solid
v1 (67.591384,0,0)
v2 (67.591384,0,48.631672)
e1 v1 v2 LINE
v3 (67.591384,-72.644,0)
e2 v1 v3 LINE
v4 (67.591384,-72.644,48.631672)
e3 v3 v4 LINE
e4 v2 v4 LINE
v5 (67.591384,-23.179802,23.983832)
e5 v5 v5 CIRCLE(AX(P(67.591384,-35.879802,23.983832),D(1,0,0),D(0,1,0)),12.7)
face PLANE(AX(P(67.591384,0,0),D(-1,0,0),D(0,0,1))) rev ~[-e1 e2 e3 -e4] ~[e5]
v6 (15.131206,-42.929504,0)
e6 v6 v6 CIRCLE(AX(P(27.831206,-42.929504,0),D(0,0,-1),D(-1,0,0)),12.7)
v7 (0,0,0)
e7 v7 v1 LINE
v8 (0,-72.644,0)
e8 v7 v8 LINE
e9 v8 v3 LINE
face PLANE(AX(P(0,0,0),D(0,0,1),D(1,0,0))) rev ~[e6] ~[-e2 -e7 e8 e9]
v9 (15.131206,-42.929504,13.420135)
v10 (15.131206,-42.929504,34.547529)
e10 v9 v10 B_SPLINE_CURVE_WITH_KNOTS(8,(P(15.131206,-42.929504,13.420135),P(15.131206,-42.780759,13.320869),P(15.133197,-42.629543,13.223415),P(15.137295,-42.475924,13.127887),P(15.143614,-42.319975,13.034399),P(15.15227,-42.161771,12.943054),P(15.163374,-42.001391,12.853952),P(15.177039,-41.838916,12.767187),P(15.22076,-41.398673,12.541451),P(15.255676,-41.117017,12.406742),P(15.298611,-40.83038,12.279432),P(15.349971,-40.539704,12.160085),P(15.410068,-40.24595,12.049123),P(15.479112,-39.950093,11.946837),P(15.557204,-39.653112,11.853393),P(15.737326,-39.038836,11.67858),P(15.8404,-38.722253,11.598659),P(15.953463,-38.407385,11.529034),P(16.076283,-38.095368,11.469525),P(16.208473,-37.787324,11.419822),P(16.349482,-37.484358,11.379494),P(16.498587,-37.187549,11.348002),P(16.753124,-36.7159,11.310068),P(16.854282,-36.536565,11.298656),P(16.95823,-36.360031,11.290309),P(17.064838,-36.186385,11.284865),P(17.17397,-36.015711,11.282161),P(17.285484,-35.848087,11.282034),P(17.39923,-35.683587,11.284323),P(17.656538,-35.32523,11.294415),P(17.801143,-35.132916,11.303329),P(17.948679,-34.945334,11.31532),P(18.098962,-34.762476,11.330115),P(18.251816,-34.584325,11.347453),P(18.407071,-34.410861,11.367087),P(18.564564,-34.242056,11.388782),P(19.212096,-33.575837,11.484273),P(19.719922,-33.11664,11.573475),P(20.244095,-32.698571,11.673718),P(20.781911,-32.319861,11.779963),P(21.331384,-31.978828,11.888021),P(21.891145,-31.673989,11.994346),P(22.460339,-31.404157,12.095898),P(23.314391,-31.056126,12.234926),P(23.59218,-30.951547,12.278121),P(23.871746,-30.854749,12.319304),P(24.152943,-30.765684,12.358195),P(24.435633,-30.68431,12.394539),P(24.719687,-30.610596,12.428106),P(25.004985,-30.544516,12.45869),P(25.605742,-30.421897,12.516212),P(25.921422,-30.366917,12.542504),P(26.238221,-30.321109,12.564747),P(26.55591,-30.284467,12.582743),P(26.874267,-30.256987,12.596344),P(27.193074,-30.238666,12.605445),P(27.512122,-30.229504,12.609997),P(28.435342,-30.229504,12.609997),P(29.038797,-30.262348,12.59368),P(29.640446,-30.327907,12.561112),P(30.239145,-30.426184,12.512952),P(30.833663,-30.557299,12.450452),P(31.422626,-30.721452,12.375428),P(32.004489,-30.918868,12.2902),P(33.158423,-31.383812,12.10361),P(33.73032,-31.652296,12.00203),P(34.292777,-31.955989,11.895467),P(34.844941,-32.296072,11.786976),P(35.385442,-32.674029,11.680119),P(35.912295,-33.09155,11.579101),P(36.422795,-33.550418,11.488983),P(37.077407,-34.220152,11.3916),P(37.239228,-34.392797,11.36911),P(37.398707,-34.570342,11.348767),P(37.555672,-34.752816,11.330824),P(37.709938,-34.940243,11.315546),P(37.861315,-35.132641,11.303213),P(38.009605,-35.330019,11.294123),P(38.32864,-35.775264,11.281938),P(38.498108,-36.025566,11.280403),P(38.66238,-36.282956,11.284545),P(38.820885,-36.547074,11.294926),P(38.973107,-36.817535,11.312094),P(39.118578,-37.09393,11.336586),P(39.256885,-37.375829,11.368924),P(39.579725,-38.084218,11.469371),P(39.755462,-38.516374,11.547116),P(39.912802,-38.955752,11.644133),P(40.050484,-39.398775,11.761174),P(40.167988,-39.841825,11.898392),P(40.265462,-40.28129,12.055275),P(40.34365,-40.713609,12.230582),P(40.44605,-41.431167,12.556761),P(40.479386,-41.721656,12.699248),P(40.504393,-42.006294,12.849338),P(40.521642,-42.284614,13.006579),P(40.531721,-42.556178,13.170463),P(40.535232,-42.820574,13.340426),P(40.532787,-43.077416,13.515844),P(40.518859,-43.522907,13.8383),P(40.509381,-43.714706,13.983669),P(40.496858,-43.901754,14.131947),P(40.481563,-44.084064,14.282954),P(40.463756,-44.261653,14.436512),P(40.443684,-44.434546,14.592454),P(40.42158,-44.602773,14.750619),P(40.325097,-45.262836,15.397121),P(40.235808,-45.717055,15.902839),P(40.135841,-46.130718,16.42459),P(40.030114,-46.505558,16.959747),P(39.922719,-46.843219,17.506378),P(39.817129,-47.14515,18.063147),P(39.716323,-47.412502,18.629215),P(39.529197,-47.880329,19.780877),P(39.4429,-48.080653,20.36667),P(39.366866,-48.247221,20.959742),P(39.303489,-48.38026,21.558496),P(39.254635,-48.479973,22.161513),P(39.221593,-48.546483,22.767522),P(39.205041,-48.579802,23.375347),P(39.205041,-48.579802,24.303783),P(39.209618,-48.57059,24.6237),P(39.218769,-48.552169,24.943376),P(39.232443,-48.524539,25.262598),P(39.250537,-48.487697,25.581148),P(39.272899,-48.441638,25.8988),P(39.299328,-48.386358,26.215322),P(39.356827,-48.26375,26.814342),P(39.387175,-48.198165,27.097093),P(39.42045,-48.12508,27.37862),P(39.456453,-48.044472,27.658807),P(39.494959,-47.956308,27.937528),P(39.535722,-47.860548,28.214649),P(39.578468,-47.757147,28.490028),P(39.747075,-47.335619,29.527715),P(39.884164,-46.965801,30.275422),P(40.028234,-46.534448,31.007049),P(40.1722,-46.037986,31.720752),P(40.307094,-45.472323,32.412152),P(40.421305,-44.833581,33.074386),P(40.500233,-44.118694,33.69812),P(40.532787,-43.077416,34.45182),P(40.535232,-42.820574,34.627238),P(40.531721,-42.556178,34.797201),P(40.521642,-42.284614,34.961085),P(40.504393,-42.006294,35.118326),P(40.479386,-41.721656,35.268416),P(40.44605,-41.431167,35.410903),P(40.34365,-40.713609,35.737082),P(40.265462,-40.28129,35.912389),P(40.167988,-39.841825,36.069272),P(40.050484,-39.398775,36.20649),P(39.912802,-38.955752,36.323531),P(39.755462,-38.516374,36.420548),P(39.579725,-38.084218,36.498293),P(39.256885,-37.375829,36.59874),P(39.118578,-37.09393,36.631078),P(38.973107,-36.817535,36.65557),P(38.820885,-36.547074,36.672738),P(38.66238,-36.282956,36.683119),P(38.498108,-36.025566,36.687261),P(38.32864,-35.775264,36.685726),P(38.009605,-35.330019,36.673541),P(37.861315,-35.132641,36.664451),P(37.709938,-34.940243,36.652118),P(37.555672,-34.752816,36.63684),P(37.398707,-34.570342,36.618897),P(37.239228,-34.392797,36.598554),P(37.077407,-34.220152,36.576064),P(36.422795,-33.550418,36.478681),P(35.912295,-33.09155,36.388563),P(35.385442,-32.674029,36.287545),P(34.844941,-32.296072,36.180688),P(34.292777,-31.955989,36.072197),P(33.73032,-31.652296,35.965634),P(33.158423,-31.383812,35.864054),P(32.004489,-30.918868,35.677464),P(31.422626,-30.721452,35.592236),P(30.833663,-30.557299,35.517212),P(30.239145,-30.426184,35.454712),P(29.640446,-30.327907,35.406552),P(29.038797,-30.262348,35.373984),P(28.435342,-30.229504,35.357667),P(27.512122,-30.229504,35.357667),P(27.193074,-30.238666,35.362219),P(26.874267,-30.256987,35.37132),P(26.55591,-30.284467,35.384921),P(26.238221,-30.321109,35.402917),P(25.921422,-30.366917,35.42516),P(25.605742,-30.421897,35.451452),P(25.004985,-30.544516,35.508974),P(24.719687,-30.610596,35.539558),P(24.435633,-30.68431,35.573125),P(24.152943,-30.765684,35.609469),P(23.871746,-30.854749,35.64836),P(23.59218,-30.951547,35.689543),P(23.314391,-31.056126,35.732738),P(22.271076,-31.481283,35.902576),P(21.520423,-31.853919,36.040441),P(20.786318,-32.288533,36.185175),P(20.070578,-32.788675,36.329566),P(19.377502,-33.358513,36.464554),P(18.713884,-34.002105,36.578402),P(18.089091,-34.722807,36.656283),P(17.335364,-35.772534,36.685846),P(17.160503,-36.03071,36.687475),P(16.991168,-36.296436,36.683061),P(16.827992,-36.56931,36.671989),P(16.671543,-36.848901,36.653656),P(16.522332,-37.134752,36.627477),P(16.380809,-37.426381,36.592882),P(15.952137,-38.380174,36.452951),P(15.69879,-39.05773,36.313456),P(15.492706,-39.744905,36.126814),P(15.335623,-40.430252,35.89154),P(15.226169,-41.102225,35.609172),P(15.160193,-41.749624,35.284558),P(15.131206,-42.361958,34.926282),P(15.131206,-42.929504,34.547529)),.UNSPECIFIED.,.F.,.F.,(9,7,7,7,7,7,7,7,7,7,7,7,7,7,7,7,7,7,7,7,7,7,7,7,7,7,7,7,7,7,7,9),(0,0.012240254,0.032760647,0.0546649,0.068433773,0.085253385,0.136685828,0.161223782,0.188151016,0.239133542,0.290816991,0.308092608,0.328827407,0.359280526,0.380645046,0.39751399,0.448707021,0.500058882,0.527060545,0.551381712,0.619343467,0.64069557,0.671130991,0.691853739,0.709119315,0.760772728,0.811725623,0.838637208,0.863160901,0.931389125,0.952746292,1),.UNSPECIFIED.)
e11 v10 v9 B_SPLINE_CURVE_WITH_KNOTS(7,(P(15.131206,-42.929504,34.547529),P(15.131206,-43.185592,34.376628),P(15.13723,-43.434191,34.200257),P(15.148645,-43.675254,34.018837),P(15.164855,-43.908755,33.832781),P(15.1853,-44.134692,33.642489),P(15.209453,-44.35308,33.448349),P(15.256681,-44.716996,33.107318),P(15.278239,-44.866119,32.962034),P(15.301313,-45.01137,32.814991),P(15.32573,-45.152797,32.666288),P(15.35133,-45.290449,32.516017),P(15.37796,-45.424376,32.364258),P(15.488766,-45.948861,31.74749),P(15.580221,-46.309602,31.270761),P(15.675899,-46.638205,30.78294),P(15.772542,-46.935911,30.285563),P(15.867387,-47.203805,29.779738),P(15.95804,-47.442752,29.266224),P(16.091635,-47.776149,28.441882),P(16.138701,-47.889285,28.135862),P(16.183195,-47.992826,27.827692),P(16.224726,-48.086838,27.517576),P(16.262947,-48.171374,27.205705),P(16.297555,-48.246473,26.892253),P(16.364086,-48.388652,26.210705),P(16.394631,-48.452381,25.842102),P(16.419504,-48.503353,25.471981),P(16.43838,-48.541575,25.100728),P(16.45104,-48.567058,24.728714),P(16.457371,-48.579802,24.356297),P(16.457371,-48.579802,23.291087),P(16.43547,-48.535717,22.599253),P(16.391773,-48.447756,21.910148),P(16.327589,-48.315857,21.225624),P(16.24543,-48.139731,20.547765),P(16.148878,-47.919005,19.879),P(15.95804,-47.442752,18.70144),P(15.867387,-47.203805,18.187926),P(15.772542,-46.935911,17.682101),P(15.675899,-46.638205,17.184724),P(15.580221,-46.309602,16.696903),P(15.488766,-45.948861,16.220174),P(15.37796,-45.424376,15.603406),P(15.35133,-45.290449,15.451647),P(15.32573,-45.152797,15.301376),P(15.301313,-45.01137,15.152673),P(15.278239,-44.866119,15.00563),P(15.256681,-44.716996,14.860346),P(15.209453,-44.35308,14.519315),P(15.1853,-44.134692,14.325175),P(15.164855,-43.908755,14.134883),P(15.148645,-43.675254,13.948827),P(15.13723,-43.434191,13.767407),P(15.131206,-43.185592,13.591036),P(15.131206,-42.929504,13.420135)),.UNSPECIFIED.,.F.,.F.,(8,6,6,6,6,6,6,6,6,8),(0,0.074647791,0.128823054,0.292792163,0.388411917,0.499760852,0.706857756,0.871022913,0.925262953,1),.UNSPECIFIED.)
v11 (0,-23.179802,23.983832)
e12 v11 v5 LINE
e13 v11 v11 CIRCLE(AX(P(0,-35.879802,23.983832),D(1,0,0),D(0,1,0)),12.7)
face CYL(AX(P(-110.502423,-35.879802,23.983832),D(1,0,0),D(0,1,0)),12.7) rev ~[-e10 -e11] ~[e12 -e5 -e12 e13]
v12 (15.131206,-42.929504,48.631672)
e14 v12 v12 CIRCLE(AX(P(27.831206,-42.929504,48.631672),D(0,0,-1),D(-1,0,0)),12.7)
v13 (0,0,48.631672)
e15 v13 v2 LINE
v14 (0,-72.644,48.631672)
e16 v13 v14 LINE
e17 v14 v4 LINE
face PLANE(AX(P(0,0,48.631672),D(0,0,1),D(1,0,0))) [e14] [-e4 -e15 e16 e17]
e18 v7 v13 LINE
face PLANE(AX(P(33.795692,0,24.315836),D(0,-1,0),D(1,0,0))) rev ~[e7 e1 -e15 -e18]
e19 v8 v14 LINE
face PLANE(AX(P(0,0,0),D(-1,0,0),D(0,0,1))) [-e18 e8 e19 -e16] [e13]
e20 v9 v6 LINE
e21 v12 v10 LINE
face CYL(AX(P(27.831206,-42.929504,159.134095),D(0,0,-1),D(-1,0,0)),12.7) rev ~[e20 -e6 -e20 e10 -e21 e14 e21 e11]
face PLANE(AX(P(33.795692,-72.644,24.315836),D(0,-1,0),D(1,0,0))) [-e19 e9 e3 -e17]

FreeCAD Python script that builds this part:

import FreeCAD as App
import Part
import Sketcher

V = App.Vector
Q = App.Units.Quantity


def add_polygon(sketch, points):
    """Adds a closed chain of lines whose ends are joined by coincident constraints."""
    first, n = sketch.GeometryCount, len(points)
    for a, b in zip(points, points[1:] + points[:1]):
        sketch.addGeometry(Part.LineSegment(App.Vector(*a, 0), App.Vector(*b, 0)), False)
    for i in range(n):
        sketch.addConstraint(Sketcher.Constraint("Coincident", first + i, 2, first + (i + 1) % n, 1))

doc = App.newDocument("Part")
body = doc.addObject("PartDesign::Body", "Body")

# Sketch on XZ plane
sketch1 = body.newObject("Sketcher::SketchObject", "Sketch")
sketch1.AttachmentSupport = (doc.getObject("XZ_Plane"), [""])
sketch1.MapMode = "FlatFace"
add_polygon(sketch1, [(0, 49), (0, 0), (68, 0), (68, 49)])  # lines 0-3
sketch1.addConstraint([
    Sketcher.Constraint("Vertical", 0),
    Sketcher.Constraint("Horizontal", 1),
    Sketcher.Constraint("Vertical", 2),
    Sketcher.Constraint("Horizontal", 3),
    Sketcher.Constraint("Coincident", 0, 2, -1, 1),
    Sketcher.Constraint("DistanceX", 1, 1, 1, 2, 67.591384),
    Sketcher.Constraint("DistanceY", 0, 2, 0, 1, 48.631672),
])
pad1 = body.newObject("PartDesign::Pad", "Pad")
pad1.Profile = sketch1
pad1.Length = Q("2.86 in")

# Sketch on XY plane
sketch2 = body.newObject("Sketcher::SketchObject", "Sketch001")
sketch2.AttachmentSupport = (doc.getObject("XY_Plane"), [""])
sketch2.MapMode = "FlatFace"
sketch2.AttachmentOffset = App.Placement(V(0, 0, 48.631672), App.Rotation())
sketch2.addGeometry(Part.Circle(V(28, -43, 0), V(0, 0, 1), 13), False)
sketch2.addConstraint([
    Sketcher.Constraint("Diameter", 0, Q("1 in")),
    Sketcher.Constraint("DistanceX", -1, 1, 0, 3, 27.831206),
    Sketcher.Constraint("DistanceY", 0, 3, -1, 1, 42.929504),
])
doc.recompute()
hole = body.newObject("PartDesign::Hole", "Hole")
hole.Profile = sketch2
hole.ThreadType = "None"
hole.Diameter = Q("1 in")
hole.DepthType = "ThroughAll"

# Sketch on YZ plane
sketch3 = body.newObject("Sketcher::SketchObject", "Sketch002")
sketch3.AttachmentSupport = (doc.getObject("YZ_Plane"), [""])
sketch3.MapMode = "FlatFace"
sketch3.addGeometry(Part.Circle(V(-36, 24, 0), V(0, 0, 1), 13), False)
sketch3.addConstraint([
    Sketcher.Constraint("Diameter", 0, Q("1 in")),
    Sketcher.Constraint("DistanceX", 0, 3, -1, 1, 35.879802),
    Sketcher.Constraint("DistanceY", -1, 1, 0, 3, 23.983832),
])
doc.recompute()
hole2 = body.newObject("PartDesign::Hole", "Hole001")
hole2.Profile = sketch3
hole2.ThreadType = "None"
hole2.Diameter = Q("1 in")
hole2.DepthType = "ThroughAll"
hole2.Reversed = True

doc.recompute()
